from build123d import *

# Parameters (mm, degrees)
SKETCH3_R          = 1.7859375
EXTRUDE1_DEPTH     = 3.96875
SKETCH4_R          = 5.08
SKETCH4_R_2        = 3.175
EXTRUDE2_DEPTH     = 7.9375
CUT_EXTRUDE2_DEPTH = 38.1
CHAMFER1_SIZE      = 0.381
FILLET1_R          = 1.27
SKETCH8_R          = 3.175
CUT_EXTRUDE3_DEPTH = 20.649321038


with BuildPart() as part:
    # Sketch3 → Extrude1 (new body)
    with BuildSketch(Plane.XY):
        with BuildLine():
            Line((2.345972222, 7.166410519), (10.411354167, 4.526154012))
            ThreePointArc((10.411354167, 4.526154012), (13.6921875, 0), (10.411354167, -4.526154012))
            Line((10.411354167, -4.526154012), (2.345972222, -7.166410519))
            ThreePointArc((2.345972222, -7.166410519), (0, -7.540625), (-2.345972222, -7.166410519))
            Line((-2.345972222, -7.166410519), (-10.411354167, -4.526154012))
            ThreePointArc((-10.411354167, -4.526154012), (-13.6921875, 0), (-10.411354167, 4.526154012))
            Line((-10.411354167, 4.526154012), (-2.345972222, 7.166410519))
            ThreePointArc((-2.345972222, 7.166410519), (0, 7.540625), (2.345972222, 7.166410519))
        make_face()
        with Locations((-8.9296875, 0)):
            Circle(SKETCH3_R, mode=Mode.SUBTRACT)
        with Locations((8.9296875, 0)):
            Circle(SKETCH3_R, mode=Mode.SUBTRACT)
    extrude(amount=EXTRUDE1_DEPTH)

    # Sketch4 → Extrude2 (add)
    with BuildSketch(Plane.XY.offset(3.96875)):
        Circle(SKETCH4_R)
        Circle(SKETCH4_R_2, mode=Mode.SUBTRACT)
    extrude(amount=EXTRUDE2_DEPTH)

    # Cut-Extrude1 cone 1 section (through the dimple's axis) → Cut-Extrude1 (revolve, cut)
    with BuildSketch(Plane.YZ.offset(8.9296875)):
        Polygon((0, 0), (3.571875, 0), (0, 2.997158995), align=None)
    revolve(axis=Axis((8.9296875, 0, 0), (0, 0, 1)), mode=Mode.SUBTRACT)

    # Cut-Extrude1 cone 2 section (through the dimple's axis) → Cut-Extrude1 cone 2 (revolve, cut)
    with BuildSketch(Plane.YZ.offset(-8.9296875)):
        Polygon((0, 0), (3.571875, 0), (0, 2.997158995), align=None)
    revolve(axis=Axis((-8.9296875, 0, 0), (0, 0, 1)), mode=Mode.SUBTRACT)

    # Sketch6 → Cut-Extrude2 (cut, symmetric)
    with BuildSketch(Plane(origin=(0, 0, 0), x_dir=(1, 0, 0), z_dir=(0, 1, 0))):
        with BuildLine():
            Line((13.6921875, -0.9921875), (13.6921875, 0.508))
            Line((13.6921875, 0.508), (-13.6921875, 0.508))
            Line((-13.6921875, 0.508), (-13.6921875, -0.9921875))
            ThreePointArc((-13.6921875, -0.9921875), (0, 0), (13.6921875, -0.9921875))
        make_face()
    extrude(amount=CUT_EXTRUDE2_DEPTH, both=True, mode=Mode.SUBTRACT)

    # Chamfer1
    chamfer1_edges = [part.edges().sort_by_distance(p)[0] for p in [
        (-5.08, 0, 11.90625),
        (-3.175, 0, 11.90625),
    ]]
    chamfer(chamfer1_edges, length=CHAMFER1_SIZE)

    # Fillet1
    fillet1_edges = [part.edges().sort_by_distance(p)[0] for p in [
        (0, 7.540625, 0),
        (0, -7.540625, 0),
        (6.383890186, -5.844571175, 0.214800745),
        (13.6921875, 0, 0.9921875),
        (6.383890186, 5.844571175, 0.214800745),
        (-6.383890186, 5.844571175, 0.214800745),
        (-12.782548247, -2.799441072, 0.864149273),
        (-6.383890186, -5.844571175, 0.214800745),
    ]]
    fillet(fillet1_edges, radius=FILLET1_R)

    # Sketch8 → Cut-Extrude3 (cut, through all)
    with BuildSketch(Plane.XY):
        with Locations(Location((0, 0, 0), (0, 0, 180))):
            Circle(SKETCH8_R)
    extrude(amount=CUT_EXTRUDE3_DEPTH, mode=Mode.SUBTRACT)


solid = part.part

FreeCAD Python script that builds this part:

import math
import FreeCAD as App
import Part
import Sketcher

V = App.Vector
Q = App.Units.Quantity


def edges_at(feature, points):
    """Names of the edges that pass closest to the given points."""
    edges = feature.Shape.Edges
    near = lambda p: min(range(len(edges)), key=lambda i: edges[i].distToShape(Part.Vertex(*p))[0])
    return sorted({f"Edge{near(p) + 1}" for p in points})


def add_polygon(sketch, points):
    """Adds a closed chain of lines whose ends are joined by coincident constraints."""
    first, n = sketch.GeometryCount, len(points)
    for a, b in zip(points, points[1:] + points[:1]):
        sketch.addGeometry(Part.LineSegment(App.Vector(*a, 0), App.Vector(*b, 0)), False)
    for i in range(n):
        sketch.addConstraint(Sketcher.Constraint("Coincident", first + i, 2, first + (i + 1) % n, 1))

doc = App.newDocument("Part")
params = doc.addObject("Spreadsheet::Sheet", "Params")
for row, (alias, value) in enumerate([
    ("sketch1_diameter", "0.140625 in"),
    ("sketch1_radius", "0.296875 in"),
    ("sketch1_radius2", "0.1875 in"),
    ("pad1_length", "0.15625 in"),
    ("sketch2_diameter", "0.4 in"),
    ("sketch2_diameter2", "0.25 in"),
    ("pad2_length", "0.3125 in"),
    ("sketch3_width", "0.140625 in"),
    ("groove_angle", "360 deg"),
    ("sketch4_width", "0.140625 in"),
    ("groove2_angle", "360 deg"),
    ("sketch5_width", "1.078125 in"),
    ("pocket1_length", "3 in"),
    ("chamfer_size", "0.015 in"),
    ("fillet_radius", "0.05 in"),
    ("sketch6_diameter", "0.25 in"),
], start=1):
    params.set(f"A{row}", alias)
    params.set(f"B{row}", "=" + value)
    params.setAlias(f"B{row}", alias)

body = doc.addObject("PartDesign::Body", "Body")

sketch1 = body.newObject("Sketcher::SketchObject", "Sketch")
sketch1.AttachmentSupport = (doc.getObject("XY_Plane"), [""])
sketch1.MapMode = "FlatFace"
sketch1.addGeometry([
    Part.LineSegment(V(10.4, 4.5, 0), V(2.3, 7.2, 0)),
    Part.ArcOfCircle(Part.Circle(V(0, 0, 0), V(0, 0, 1), 7.5), math.radians(72), math.radians(108)),
    Part.LineSegment(V(-2.3, 7.2, 0), V(-10.4, 4.5, 0)),
    Part.ArcOfCircle(Part.Circle(V(-8.9, 0, 0), V(0, 0, 1), 4.8), math.radians(108), math.radians(252)),
    Part.LineSegment(V(-10.4, -4.5, 0), V(-2.3, -7.2, 0)),
    Part.ArcOfCircle(Part.Circle(V(0, 0, 0), V(0, 0, 1), 7.5), math.radians(-108), math.radians(-72)),
    Part.LineSegment(V(2.3, -7.2, 0), V(10.4, -4.5, 0)),
    Part.ArcOfCircle(Part.Circle(V(8.9, 0, 0), V(0, 0, 1), 4.8), math.radians(-72), math.radians(72)),
    Part.Circle(V(8.9, 0, 0), V(0, 0, 1), 1.8),
    Part.Circle(V(-8.9, 0, 0), V(0, 0, 1), 1.8),
], False)
sketch1.addConstraint([
    Sketcher.Constraint("Tangent", 0, 2, 1, 1),
    Sketcher.Constraint("Tangent", 1, 2, 2, 1),
    Sketcher.Constraint("Tangent", 2, 2, 3, 1),
    Sketcher.Constraint("Tangent", 3, 2, 4, 1),
    Sketcher.Constraint("Tangent", 4, 2, 5, 1),
    Sketcher.Constraint("Tangent", 5, 2, 6, 1),
    Sketcher.Constraint("Tangent", 6, 2, 7, 1),
    Sketcher.Constraint("Tangent", 7, 2, 0, 1),
    Sketcher.Constraint("Coincident", 1, 3, -1, 1),
    Sketcher.Constraint("Coincident", 5, 3, -1, 1),
    Sketcher.Constraint("Coincident", 8, 3, 7, 3),
    Sketcher.Constraint("Coincident", 9, 3, 3, 3),
    Sketcher.Constraint("Equal", 1, 5),
    Sketcher.Constraint("Equal", 3, 7),
    Sketcher.Constraint("Equal", 8, 9),
    Sketcher.Constraint("Symmetric", 3, 3, 7, 3, -1, 1),
    Sketcher.Constraint("PointOnObject", 3, 3, -1),
    Sketcher.Constraint("Diameter", 8, Q("0.140625 in")),
    Sketcher.Constraint("Radius", 1, Q("0.296875 in")),
    Sketcher.Constraint("Radius", 3, Q("0.1875 in")),
    Sketcher.Constraint("DistanceX", 3, 3, 7, 3, Q("0.703125 in")),
])
sketch1.setExpression("Constraints[17]", "Params.sketch1_diameter")
sketch1.setExpression("Constraints[18]", "Params.sketch1_radius")
sketch1.setExpression("Constraints[19]", "Params.sketch1_radius2")
pad1 = body.newObject("PartDesign::Pad", "Pad")
pad1.Profile = sketch1
pad1.setExpression("Length", "Params.pad1_length")

sketch2 = body.newObject("Sketcher::SketchObject", "Sketch001")
sketch2.AttachmentSupport = (doc.getObject("XY_Plane"), [""])
sketch2.MapMode = "FlatFace"
sketch2.AttachmentOffset = App.Placement(V(0, 0, 0.15625 * 25.4), App.Rotation())
sketch2.addGeometry([
    Part.Circle(V(0, 0, 0), V(0, 0, 1), 5.1),
    Part.Circle(V(0, 0, 0), V(0, 0, 1), 3.2),
], False)
sketch2.addConstraint([
    Sketcher.Constraint("Coincident", 0, 3, -1, 1),
    Sketcher.Constraint("Coincident", 1, 3, -1, 1),
    Sketcher.Constraint("Diameter", 0, Q("0.4 in")),
    Sketcher.Constraint("Diameter", 1, Q("0.25 in")),
])
sketch2.setExpression("Constraints[2]", "Params.sketch2_diameter")
sketch2.setExpression("Constraints[3]", "Params.sketch2_diameter2")
pad2 = body.newObject("PartDesign::Pad", "Pad001")
pad2.Profile = sketch2
pad2.setExpression("Length", "Params.pad2_length")

sketch3 = body.newObject("Sketcher::SketchObject", "Sketch002")
sketch3.AttachmentSupport = (doc.getObject("YZ_Plane"), [""])
sketch3.MapMode = "FlatFace"
sketch3.AttachmentOffset = App.Placement(V(0, 0, 8.929688), App.Rotation())
add_polygon(sketch3, [(0, 0), (3.6, 0), (0, 3)])
sketch3.addConstraint([
    Sketcher.Constraint("Horizontal", 0),
    Sketcher.Constraint("Vertical", 2),
    Sketcher.Constraint("Coincident", 2, 2, -1, 1),
    Sketcher.Constraint("Angle", 1, Q("140 deg")),
    Sketcher.Constraint("DistanceX", 0, 1, 0, 2, Q("0.140625 in")),
])
sketch3.setExpression("Constraints[7]", "Params.sketch3_width")
groove = body.newObject("PartDesign::Groove", "Groove")
groove.Profile = sketch3
groove.ReferenceAxis = (sketch3, ["V_Axis"])
groove.setExpression("Angle", "Params.groove_angle")

sketch4 = body.newObject("Sketcher::SketchObject", "Sketch003")
sketch4.AttachmentSupport = (doc.getObject("YZ_Plane"), [""])
sketch4.MapMode = "FlatFace"
sketch4.AttachmentOffset = App.Placement(V(0, 0, -8.929688), App.Rotation())
add_polygon(sketch4, [(0, 0), (3.6, 0), (0, 3)])
sketch4.addConstraint([
    Sketcher.Constraint("Horizontal", 0),
    Sketcher.Constraint("Vertical", 2),
    Sketcher.Constraint("Coincident", 2, 2, -1, 1),
    Sketcher.Constraint("Angle", 1, Q("140 deg")),
    Sketcher.Constraint("DistanceX", 0, 1, 0, 2, Q("0.140625 in")),
])
sketch4.setExpression("Constraints[7]", "Params.sketch4_width")
groove2 = body.newObject("PartDesign::Groove", "Groove001")
groove2.Profile = sketch4
groove2.ReferenceAxis = (sketch4, ["V_Axis"])
groove2.setExpression("Angle", "Params.groove2_angle")

sketch5 = body.newObject("Sketcher::SketchObject", "Sketch004")
sketch5.AttachmentSupport = (doc.getObject("XZ_Plane"), [""])
sketch5.MapMode = "FlatFace"
sketch5.addGeometry([
    Part.LineSegment(V(13.7, 1, 0), V(13.7, -0.5, 0)),
    Part.LineSegment(V(13.7, -0.5, 0), V(-13.7, -0.5, 0)),
    Part.LineSegment(V(-13.7, -0.5, 0), V(-13.7, 1, 0)),
    Part.ArcOfCircle(Part.Circle(V(0, 95, 0), V(0, 0, 1), 95), math.radians(-98.29), math.radians(-81.71)),
], False)
sketch5.addConstraint([
    Sketcher.Constraint("Coincident", 0, 2, 1, 1),
    Sketcher.Constraint("Coincident", 1, 2, 2, 1),
    Sketcher.Constraint("Coincident", 2, 2, 3, 1),
    Sketcher.Constraint("Coincident", 3, 2, 0, 1),
    Sketcher.Constraint("Vertical", 0),
    Sketcher.Constraint("Horizontal", 1),
    Sketcher.Constraint("Vertical", 2),
    Sketcher.Constraint("Symmetric", 2, 2, 3, 2, -2),
    Sketcher.Constraint("DistanceY", 2, 2, 3, 3, Q("3.7 in")),
    Sketcher.Constraint("DistanceX", 1, 2, 1, 1, Q("1.078125 in")),
    Sketcher.Constraint("DistanceY", 0, 2, -1, 1, Q("0.02 in")),
    Sketcher.Constraint("DistanceY", 0, 2, 0, 1, Q("1.500188 mm")),
])
sketch5.setExpression("Constraints[9]", "Params.sketch5_width")
pocket1 = body.newObject("PartDesign::Pocket", "Pocket")
pocket1.Profile = sketch5
pocket1.setExpression("Length", "Params.pocket1_length")
pocket1.Midplane = True
doc.recompute()

chamfer = body.newObject("PartDesign::Chamfer", "Chamfer")
chamfer.Base = (pocket1, edges_at(pocket1, [(-5.08, 0, 11.906), (-3.175, 0, 11.906)]))
chamfer.setExpression("Size", "Params.chamfer_size")
doc.recompute()

fillet = body.newObject("PartDesign::Fillet", "Fillet")
fillet.Base = (chamfer, edges_at(chamfer, [
    (0, 7.541, 0),
    (0, -7.541, 0),
    (6.384, -5.845, 0.215),
    (13.692, 0, 0.992),
    (6.384, 5.845, 0.215),
    (-6.384, 5.845, 0.215),
    (-12.783, -2.799, 0.864),
    (-6.384, -5.845, 0.215),
]))
fillet.setExpression("Radius", "Params.fillet_radius")

sketch6 = body.newObject("Sketcher::SketchObject", "Sketch005")
sketch6.AttachmentSupport = (doc.getObject("XY_Plane"), [""])
sketch6.MapMode = "FlatFace"
sketch6.addGeometry(Part.Circle(V(0, 0, 0), V(0, 0, 1), 3.2), False)
sketch6.addConstraint([
    Sketcher.Constraint("Coincident", 0, 3, -1, 1),
    Sketcher.Constraint("Diameter", 0, Q("0.25 in")),
])
sketch6.setExpression("Constraints[1]", "Params.sketch6_diameter")
pocket2 = body.newObject("PartDesign::Pocket", "Pocket001")
pocket2.Profile = sketch6
pocket2.Type = "ThroughAll"
pocket2.Reversed = True

doc.recompute()
